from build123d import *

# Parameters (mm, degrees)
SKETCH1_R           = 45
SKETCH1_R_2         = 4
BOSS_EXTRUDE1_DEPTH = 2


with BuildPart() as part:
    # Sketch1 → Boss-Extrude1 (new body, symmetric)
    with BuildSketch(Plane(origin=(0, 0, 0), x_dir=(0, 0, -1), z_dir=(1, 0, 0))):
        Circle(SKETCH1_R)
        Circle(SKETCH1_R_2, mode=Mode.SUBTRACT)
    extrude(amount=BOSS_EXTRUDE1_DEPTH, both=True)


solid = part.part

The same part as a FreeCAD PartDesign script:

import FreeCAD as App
import Part
import Sketcher

V = App.Vector

doc = App.newDocument("Part")
body = doc.addObject("PartDesign::Body", "Body")

sketch1 = body.newObject("Sketcher::SketchObject", "Sketch")
sketch1.AttachmentSupport = (doc.getObject("YZ_Plane"), [""])
sketch1.MapMode = "FlatFace"
sketch1.addGeometry([
    Part.Circle(V(0, 0, 0), V(0, 0, 1), 45),
    Part.Circle(V(0, 0, 0), V(0, 0, 1), 4),
], False)
sketch1.addConstraint([
    Sketcher.Constraint("Coincident", 0, 3, -1, 1),
    Sketcher.Constraint("Coincident", 1, 3, -1, 1),
    Sketcher.Constraint("Diameter", 0, 90.0),
    Sketcher.Constraint("Diameter", 1, 8.0),
])
pad1 = body.newObject("PartDesign::Pad", "Pad")
pad1.Profile = sketch1
pad1.Length = 4
pad1.Midplane = True

doc.recompute()
